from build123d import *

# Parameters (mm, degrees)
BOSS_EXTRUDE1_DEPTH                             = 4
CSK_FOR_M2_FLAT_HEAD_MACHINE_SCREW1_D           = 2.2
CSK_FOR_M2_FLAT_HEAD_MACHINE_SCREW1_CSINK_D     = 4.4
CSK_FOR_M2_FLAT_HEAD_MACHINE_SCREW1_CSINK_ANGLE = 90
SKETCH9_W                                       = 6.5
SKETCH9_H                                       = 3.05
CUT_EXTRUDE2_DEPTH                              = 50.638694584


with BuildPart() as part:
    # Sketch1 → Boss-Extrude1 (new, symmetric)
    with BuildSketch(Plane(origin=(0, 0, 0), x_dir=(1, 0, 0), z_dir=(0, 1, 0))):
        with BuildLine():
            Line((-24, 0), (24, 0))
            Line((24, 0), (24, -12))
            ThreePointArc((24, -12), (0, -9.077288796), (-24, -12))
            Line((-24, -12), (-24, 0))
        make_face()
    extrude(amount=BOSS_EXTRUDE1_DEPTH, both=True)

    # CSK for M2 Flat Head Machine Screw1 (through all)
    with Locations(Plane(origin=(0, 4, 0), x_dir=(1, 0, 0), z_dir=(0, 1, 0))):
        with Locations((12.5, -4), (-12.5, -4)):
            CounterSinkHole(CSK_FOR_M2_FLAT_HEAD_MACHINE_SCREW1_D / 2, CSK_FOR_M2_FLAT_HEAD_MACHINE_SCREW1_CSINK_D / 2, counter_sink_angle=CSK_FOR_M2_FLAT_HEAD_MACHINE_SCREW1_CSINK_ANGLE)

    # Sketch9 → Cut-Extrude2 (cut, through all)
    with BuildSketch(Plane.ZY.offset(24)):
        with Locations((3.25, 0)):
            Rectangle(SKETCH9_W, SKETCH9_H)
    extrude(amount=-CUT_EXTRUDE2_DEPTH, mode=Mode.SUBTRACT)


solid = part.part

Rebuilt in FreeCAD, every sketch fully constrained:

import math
import FreeCAD as App
import Part
import Sketcher
Q = App.Units.Quantity

doc = App.newDocument("Part")
body = doc.addObject("PartDesign::Body", "Body")

sketch1 = body.newObject("Sketcher::SketchObject", "Sketch")
sketch1.AttachmentSupport = (doc.getObject("XZ_Plane"), [""])
sketch1.MapMode = "FlatFace"
sketch1.addGeometry([
    Part.LineSegment(App.Vector(24, 0, 0), App.Vector(-24, 0, 0)),
    Part.LineSegment(App.Vector(-24, 0, 0), App.Vector(-24, 12, 0)),
    Part.ArcOfCircle(Part.Circle(App.Vector(0, 109, 0), App.Vector(0, 0, 1), 100), math.radians(-104), math.radians(-76)),
    Part.LineSegment(App.Vector(24, 12, 0), App.Vector(24, 0, 0)),
], False)
sketch1.addConstraint([
    Sketcher.Constraint("Coincident", 0, 2, 1, 1),
    Sketcher.Constraint("Coincident", 1, 2, 2, 1),
    Sketcher.Constraint("Coincident", 2, 2, 3, 1),
    Sketcher.Constraint("Coincident", 3, 2, 0, 1),
    Sketcher.Constraint("Horizontal", 0),
    Sketcher.Constraint("Vertical", 1),
    Sketcher.Constraint("Vertical", 3),
    Sketcher.Constraint("Symmetric", 0, 2, 3, 2, -1, 1),
    Sketcher.Constraint("PointOnObject", 2, 3, -2),
    Sketcher.Constraint("Radius", 2, Q("100 mm")),
    Sketcher.Constraint("DistanceX", 0, 2, 0, 1, Q("48 mm")),
    Sketcher.Constraint("DistanceY", 1, 1, 1, 2, Q("12 mm")),
])
pad1 = body.newObject("PartDesign::Pad", "Pad")
pad1.Profile = sketch1
pad1.Length = 8
pad1.Midplane = True

sketch2 = body.newObject("Sketcher::SketchObject", "Sketch001")
sketch2.AttachmentSupport = (doc.getObject("XZ_Plane"), [""])
sketch2.MapMode = "FlatFace"
sketch2.AttachmentOffset = App.Placement(App.Vector(0, 0, -4), App.Rotation())
sketch2.addGeometry([
    Part.Circle(App.Vector(12.5, 4, 0), App.Vector(0, 0, 1), 1.1),
    Part.Circle(App.Vector(-12.5, 4, 0), App.Vector(0, 0, 1), 1.1),
], False)
sketch2.addConstraint([
    Sketcher.Constraint("Equal", 0, 1),
    Sketcher.Constraint("Symmetric", 0, 3, 1, 3, -2),
    Sketcher.Constraint("Diameter", 0, Q("2.2 mm")),
    Sketcher.Constraint("DistanceY", -1, 1, 0, 3, Q("4 mm")),
    Sketcher.Constraint("DistanceX", 1, 3, 0, 3, Q("25 mm")),
])
doc.recompute()
hole = body.newObject("PartDesign::Hole", "Hole")
hole.Profile = sketch2
hole.ThreadType = "None"
hole.Diameter = 2.2
hole.DepthType = "ThroughAll"
hole.HoleCutType = "Countersink"
hole.HoleCutDiameter = 4.4
hole.HoleCutCountersinkAngle = 90
hole.Reversed = True

sketch3 = body.newObject("Sketcher::SketchObject", "Sketch002")
sketch3.AttachmentSupport = (doc.getObject("YZ_Plane"), [""])
sketch3.MapMode = "FlatFace"
sketch3.AttachmentOffset = App.Placement(App.Vector(0, 0, -24), App.Rotation())
sketch3.addGeometry([
    Part.LineSegment(App.Vector(1.5, 0, 0), App.Vector(-1.5, 0, 0)),
    Part.LineSegment(App.Vector(-1.5, 0, 0), App.Vector(-1.5, 6.5, 0)),
    Part.LineSegment(App.Vector(-1.5, 6.5, 0), App.Vector(1.5, 6.5, 0)),
    Part.LineSegment(App.Vector(1.5, 6.5, 0), App.Vector(1.5, 0, 0)),
], False)
sketch3.addConstraint([
    Sketcher.Constraint("Coincident", 0, 2, 1, 1),
    Sketcher.Constraint("Coincident", 1, 2, 2, 1),
    Sketcher.Constraint("Coincident", 2, 2, 3, 1),
    Sketcher.Constraint("Coincident", 3, 2, 0, 1),
    Sketcher.Constraint("Horizontal", 0),
    Sketcher.Constraint("Vertical", 1),
    Sketcher.Constraint("Horizontal", 2),
    Sketcher.Constraint("Vertical", 3),
    Sketcher.Constraint("Symmetric", 0, 2, 3, 2, -1, 1),
    Sketcher.Constraint("DistanceY", 1, 1, 1, 2, Q("6.5 mm")),
    Sketcher.Constraint("DistanceX", 0, 2, 0, 1, Q("3.05 mm")),
])
pocket1 = body.newObject("PartDesign::Pocket", "Pocket")
pocket1.Profile = sketch3
pocket1.Type = "ThroughAll"
pocket1.Reversed = True

doc.recompute()
